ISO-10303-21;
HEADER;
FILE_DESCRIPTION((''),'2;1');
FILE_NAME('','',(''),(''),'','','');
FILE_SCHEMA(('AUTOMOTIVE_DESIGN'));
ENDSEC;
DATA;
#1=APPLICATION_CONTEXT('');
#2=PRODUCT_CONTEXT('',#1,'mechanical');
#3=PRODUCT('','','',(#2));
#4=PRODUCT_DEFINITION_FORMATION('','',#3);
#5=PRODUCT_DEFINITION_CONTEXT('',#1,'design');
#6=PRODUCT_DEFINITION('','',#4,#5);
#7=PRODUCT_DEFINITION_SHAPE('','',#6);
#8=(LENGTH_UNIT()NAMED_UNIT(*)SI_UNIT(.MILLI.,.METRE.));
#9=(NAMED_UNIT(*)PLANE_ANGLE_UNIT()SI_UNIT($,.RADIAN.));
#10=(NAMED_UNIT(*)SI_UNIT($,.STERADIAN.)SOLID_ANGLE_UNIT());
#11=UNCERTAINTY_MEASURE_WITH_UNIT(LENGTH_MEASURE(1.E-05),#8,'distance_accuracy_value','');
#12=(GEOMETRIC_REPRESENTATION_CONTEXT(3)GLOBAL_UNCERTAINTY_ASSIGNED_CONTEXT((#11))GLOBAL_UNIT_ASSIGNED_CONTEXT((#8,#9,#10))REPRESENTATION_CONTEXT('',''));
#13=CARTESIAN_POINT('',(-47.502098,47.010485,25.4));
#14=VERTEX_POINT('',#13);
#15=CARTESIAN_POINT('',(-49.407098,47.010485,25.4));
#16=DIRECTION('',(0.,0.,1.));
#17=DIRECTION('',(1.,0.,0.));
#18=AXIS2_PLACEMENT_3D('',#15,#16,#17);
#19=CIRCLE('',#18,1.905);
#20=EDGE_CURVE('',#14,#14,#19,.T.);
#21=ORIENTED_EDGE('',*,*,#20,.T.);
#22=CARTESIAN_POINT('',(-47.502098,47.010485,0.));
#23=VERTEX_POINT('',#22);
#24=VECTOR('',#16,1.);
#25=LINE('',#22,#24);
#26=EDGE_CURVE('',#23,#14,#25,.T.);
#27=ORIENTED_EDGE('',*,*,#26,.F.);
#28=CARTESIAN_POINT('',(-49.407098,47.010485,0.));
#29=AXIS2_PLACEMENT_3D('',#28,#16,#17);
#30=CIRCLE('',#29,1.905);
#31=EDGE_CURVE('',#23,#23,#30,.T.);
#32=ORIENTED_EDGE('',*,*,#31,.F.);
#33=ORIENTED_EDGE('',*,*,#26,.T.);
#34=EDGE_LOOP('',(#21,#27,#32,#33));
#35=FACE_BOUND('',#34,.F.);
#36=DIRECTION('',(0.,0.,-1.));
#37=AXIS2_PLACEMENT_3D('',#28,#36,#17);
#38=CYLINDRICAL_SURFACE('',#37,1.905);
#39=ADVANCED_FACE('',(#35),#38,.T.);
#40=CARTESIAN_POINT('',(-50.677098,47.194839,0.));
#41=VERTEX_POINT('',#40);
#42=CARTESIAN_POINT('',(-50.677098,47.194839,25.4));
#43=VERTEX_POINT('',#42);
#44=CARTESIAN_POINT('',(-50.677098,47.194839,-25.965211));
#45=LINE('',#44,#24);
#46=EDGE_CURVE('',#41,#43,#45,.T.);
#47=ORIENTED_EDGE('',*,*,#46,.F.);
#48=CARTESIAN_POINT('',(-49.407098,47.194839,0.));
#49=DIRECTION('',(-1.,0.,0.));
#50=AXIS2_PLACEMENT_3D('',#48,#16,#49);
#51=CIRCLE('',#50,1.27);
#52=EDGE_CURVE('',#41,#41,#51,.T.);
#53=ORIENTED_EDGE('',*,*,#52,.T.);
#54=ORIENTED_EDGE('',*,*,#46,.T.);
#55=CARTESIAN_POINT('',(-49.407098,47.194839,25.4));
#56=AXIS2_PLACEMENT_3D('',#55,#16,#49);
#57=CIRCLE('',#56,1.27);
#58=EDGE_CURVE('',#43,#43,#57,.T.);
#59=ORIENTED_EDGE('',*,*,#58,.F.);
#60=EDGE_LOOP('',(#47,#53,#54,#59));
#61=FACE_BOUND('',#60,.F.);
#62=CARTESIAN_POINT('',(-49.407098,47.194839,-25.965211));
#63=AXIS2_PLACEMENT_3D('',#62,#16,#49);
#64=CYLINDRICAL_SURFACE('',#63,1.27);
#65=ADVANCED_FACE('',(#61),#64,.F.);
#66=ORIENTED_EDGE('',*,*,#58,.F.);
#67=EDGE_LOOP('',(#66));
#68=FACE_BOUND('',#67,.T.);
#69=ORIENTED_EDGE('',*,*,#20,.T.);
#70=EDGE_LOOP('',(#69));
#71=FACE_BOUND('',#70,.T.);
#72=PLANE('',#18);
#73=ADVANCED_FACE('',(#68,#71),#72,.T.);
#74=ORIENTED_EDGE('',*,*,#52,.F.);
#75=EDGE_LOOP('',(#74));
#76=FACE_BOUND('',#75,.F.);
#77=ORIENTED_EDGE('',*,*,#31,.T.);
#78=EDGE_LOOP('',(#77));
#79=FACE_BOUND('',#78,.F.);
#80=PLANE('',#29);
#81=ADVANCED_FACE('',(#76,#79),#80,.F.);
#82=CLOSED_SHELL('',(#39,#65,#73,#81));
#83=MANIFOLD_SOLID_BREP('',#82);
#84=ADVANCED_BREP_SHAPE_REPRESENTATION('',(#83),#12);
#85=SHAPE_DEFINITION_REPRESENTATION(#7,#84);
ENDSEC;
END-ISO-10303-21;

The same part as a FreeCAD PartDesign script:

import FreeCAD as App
import Part
import Sketcher
Q = App.Units.Quantity

doc = App.newDocument("Part")
body = doc.addObject("PartDesign::Body", "Body")

# Sketch on XY plane
sketch1 = body.newObject("Sketcher::SketchObject", "Sketch")
sketch1.AttachmentSupport = (doc.getObject("XY_Plane"), [""])
sketch1.MapMode = "FlatFace"
sketch1.addGeometry(Part.Circle(App.Vector(-49.407098, 47.010485, 0), App.Vector(0, 0, 1), 1.905), False)
sketch1.addConstraint([
    Sketcher.Constraint("Diameter", 0, Q("0.15 in")),
    Sketcher.Constraint("DistanceX", 0, 3, -1, 1, Q("49.407098 mm")),
    Sketcher.Constraint("DistanceY", -1, 1, 0, 3, Q("47.010485 mm")),
])
pad1 = body.newObject("PartDesign::Pad", "Pad")
pad1.Profile = sketch1
pad1.Length = Q("1 in")

# Sketch on XY plane
sketch2 = body.newObject("Sketcher::SketchObject", "Sketch001")
sketch2.AttachmentSupport = (doc.getObject("XY_Plane"), [""])
sketch2.MapMode = "FlatFace"
sketch2.addGeometry(Part.Circle(App.Vector(-49.407098, 47.194839, 0), App.Vector(0, 0, 1), 1.27), False)
sketch2.addConstraint([
    Sketcher.Constraint("Diameter", 0, Q("0.1 in")),
    Sketcher.Constraint("DistanceX", 0, 3, -1, 1, Q("49.407098 mm")),
    Sketcher.Constraint("DistanceY", -1, 1, 0, 3, Q("47.194839 mm")),
])
doc.recompute()
hole = body.newObject("PartDesign::Hole", "Hole")
hole.Profile = sketch2
hole.ThreadType = "None"
hole.Diameter = Q("0.1 in")
hole.DepthType = "ThroughAll"
hole.Reversed = True

doc.recompute()
